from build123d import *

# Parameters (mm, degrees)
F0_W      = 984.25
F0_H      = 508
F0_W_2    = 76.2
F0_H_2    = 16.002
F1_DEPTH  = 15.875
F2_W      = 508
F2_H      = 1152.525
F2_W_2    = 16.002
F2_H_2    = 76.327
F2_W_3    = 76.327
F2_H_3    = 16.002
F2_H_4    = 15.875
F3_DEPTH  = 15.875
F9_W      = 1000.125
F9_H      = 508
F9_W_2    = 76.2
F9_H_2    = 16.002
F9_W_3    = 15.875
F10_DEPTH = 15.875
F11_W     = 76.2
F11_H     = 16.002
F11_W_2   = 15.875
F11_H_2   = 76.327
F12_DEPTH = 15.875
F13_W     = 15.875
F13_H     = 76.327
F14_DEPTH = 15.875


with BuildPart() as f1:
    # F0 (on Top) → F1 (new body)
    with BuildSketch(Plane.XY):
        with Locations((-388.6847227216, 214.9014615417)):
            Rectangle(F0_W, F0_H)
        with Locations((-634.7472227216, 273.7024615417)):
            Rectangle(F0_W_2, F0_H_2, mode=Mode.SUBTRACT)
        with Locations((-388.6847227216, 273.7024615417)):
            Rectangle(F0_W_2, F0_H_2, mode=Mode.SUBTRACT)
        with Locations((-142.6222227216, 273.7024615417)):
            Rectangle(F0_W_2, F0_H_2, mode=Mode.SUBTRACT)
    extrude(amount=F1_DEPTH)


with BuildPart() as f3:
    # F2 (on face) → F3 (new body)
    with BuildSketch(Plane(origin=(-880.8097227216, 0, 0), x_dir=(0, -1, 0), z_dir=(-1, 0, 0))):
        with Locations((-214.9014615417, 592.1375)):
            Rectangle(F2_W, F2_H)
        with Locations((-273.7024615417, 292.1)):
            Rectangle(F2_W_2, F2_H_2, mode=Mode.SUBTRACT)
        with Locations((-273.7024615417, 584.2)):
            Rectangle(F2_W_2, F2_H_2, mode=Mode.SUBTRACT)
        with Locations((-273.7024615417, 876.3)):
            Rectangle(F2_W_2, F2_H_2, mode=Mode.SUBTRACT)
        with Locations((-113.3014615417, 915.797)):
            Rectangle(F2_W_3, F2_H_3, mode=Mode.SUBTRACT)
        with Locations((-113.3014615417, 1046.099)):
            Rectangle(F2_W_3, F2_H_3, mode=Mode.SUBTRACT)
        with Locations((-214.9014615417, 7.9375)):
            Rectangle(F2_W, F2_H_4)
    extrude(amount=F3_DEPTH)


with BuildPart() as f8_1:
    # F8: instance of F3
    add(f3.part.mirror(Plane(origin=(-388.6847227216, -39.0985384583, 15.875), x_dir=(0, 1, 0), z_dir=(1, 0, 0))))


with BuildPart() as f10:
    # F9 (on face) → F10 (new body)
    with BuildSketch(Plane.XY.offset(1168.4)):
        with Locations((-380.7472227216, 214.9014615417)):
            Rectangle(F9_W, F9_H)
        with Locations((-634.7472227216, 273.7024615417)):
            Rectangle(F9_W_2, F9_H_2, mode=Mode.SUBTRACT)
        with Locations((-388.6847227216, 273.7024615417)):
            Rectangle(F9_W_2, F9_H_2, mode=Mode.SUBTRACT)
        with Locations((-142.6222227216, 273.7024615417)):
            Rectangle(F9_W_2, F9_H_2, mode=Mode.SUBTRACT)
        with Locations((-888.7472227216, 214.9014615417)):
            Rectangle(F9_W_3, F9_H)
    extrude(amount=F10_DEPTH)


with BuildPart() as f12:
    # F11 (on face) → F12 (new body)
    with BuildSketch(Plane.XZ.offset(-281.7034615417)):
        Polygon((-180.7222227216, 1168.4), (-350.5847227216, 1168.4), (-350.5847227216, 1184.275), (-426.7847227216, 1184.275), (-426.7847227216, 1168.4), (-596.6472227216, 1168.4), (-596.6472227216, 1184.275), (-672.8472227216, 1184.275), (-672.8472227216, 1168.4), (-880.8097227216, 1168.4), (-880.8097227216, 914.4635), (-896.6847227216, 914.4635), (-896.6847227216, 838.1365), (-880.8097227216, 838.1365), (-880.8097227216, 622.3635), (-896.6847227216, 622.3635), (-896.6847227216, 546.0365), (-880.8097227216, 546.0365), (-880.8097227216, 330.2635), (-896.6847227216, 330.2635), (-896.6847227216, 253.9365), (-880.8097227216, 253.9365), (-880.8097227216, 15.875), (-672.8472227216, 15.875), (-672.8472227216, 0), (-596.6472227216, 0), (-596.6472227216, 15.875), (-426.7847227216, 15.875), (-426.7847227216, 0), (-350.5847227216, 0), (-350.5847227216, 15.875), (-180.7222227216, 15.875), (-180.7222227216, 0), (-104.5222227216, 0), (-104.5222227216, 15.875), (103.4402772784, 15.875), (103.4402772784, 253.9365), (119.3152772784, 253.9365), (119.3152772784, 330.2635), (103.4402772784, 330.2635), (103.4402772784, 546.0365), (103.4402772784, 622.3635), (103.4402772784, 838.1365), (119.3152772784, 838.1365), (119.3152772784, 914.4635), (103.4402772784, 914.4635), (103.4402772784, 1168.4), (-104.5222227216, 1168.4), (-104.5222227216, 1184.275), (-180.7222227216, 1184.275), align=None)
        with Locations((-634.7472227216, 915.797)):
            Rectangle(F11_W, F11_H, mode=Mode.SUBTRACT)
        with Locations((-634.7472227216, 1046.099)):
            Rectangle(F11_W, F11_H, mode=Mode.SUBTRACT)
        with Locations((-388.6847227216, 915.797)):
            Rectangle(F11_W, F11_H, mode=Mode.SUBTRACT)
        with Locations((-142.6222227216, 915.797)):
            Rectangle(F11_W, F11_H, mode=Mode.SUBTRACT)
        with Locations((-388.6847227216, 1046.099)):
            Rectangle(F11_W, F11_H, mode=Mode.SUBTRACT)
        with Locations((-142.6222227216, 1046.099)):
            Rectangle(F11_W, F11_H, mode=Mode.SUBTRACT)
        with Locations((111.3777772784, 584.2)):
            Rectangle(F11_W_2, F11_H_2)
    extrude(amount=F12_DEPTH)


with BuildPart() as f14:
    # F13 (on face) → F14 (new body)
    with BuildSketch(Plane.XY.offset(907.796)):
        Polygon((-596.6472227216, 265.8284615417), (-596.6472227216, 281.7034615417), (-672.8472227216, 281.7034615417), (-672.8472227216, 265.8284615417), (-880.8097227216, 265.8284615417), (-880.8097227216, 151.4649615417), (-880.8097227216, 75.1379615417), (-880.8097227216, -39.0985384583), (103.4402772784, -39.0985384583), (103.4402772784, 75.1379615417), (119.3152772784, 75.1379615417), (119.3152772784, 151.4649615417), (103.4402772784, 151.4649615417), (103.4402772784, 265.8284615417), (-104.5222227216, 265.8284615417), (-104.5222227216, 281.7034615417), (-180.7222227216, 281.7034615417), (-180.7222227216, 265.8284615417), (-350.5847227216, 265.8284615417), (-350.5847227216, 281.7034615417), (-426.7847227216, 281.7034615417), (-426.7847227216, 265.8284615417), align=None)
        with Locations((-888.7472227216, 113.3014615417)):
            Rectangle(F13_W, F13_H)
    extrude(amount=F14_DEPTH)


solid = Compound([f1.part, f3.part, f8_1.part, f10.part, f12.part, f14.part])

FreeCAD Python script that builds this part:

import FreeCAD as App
import Part
import Sketcher

V = App.Vector
Q = App.Units.Quantity


def add_polygon(sketch, points):
    """Adds a closed chain of lines whose ends are joined by coincident constraints."""
    first, n = sketch.GeometryCount, len(points)
    for a, b in zip(points, points[1:] + points[:1]):
        sketch.addGeometry(Part.LineSegment(App.Vector(*a, 0), App.Vector(*b, 0)), False)
    for i in range(n):
        sketch.addConstraint(Sketcher.Constraint("Coincident", first + i, 2, first + (i + 1) % n, 1))

doc = App.newDocument("Part")
body = doc.addObject("PartDesign::Body", "Body")

# Sketch on XY plane
sketch1 = doc.addObject("Sketcher::SketchObject", "Sketch")
body.addObject(sketch1)
sketch1.AttachmentSupport = (doc.XY_Plane, [""])
sketch1.MapMode = "FlatFace"
add_polygon(sketch1, [(-880.809723, 468.901462), (-880.809723, -39.098538), (103.440277, -39.098538), (103.440277, 468.901462)])  # lines 0-3
add_polygon(sketch1, [(-596.647223, 265.701462), (-672.847223, 265.701462), (-672.847223, 281.703462), (-596.647223, 281.703462)])  # lines 4-7
add_polygon(sketch1, [(-350.584723, 265.701462), (-426.784723, 265.701462), (-426.784723, 281.703462), (-350.584723, 281.703462)])  # lines 8-11
add_polygon(sketch1, [(-104.522223, 265.701462), (-180.722223, 265.701462), (-180.722223, 281.703462), (-104.522223, 281.703462)])  # lines 12-15
sketch1.addConstraint(Sketcher.Constraint("Vertical", 0))
sketch1.addConstraint(Sketcher.Constraint("Horizontal", 1))
sketch1.addConstraint(Sketcher.Constraint("Vertical", 2))
sketch1.addConstraint(Sketcher.Constraint("Horizontal", 3))
sketch1.addConstraint(Sketcher.Constraint("Horizontal", 4))
sketch1.addConstraint(Sketcher.Constraint("Vertical", 5))
sketch1.addConstraint(Sketcher.Constraint("Horizontal", 6))
sketch1.addConstraint(Sketcher.Constraint("Vertical", 7))
sketch1.addConstraint(Sketcher.Constraint("Horizontal", 8))
sketch1.addConstraint(Sketcher.Constraint("Vertical", 9))
sketch1.addConstraint(Sketcher.Constraint("Horizontal", 10))
sketch1.addConstraint(Sketcher.Constraint("Vertical", 11))
sketch1.addConstraint(Sketcher.Constraint("Horizontal", 12))
sketch1.addConstraint(Sketcher.Constraint("Vertical", 13))
sketch1.addConstraint(Sketcher.Constraint("Horizontal", 14))
sketch1.addConstraint(Sketcher.Constraint("Vertical", 15))
sketch1.addConstraint(Sketcher.Constraint("Horizontal", 7, 2, 8, 2))
sketch1.addConstraint(Sketcher.Constraint("Horizontal", 6, 2, 9, 2))
sketch1.addConstraint(Sketcher.Constraint("Horizontal", 11, 2, 12, 2))
sketch1.addConstraint(Sketcher.Constraint("Horizontal", 10, 2, 13, 2))
sketch1.addConstraint(Sketcher.Constraint("Equal", 6, 8))
sketch1.addConstraint(Sketcher.Constraint("Equal", 10, 12))
sketch1.addConstraint(Sketcher.Constraint("DistanceX", 4, 2, 4, 1, Q("3 in")))
sketch1.addConstraint(Sketcher.Constraint("DistanceY", 0, 2, 0, 1, Q("20 in")))
sketch1.addConstraint(Sketcher.Constraint("DistanceY", 4, 2, 3, 2, Q("8 in")))
sketch1.addConstraint(Sketcher.Constraint("DistanceX", 1, 1, 1, 2, Q("38.75 in")))
sketch1.addConstraint(Sketcher.Constraint("DistanceY", 5, 1, 5, 2, Q("0.63 in")))
sketch1.addConstraint(Sketcher.Constraint("DistanceX", 3, 2, 4, 2, Q("8.1875 in")))
sketch1.addConstraint(Sketcher.Constraint("DistanceX", 7, 2, 8, 2, Q("6.6875 in")))
sketch1.addConstraint(Sketcher.Constraint("DistanceX", 11, 2, 12, 2, Q("6.6875 in")))
sketch1.addConstraint(Sketcher.Constraint("DistanceY", 0, 2, -1, 1, 39.098538))
sketch1.addConstraint(Sketcher.Constraint("DistanceX", 0, 2, -1, 1, 880.809723))
pad1 = doc.addObject("PartDesign::Pad", "Pad")
body.addObject(pad1)
pad1.Profile = sketch1
pad1.Length = Q("0.625 in")
body2 = doc.addObject("PartDesign::Body", "Body001")

# Sketch on YZ plane
sketch2 = doc.addObject("Sketcher::SketchObject", "Sketch001")
body2.addObject(sketch2)
sketch2.AttachmentSupport = (doc.getObject("YZ_Plane001"), [""])
sketch2.MapMode = "FlatFace"
sketch2.AttachmentOffset = App.Placement(V(0, 0, -880.809723), App.Rotation())
add_polygon(sketch2, [(468.901462, 1168.4), (468.901462, 0), (-39.098538, 0), (-39.098538, 1168.4)])  # lines 0-3
add_polygon(sketch2, [(265.701462, 253.9365), (281.703462, 253.9365), (281.703462, 330.2635), (265.701462, 330.2635)])  # lines 4-7
add_polygon(sketch2, [(265.701462, 546.0365), (281.703462, 546.0365), (281.703462, 622.3635), (265.701462, 622.3635)])  # lines 8-11
add_polygon(sketch2, [(265.701462, 838.1365), (281.703462, 838.1365), (281.703462, 914.4635), (265.701462, 914.4635)])  # lines 12-15
add_polygon(sketch2, [(75.137962, 907.796), (151.464962, 907.796), (151.464962, 923.798), (75.137962, 923.798)])  # lines 16-19
add_polygon(sketch2, [(75.137962, 1038.098), (151.464962, 1038.098), (151.464962, 1054.1), (75.137962, 1054.1)])  # lines 20-23
sketch2.addConstraint(Sketcher.Constraint("Vertical", 0))
sketch2.addConstraint(Sketcher.Constraint("Horizontal", 1))
sketch2.addConstraint(Sketcher.Constraint("Vertical", 2))
sketch2.addConstraint(Sketcher.Constraint("Horizontal", 3))
sketch2.addConstraint(Sketcher.Constraint("Horizontal", 4))
sketch2.addConstraint(Sketcher.Constraint("Vertical", 5))
sketch2.addConstraint(Sketcher.Constraint("Horizontal", 6))
sketch2.addConstraint(Sketcher.Constraint("Vertical", 7))
sketch2.addConstraint(Sketcher.Constraint("Horizontal", 8))
sketch2.addConstraint(Sketcher.Constraint("Vertical", 9))
sketch2.addConstraint(Sketcher.Constraint("Horizontal", 10))
sketch2.addConstraint(Sketcher.Constraint("Vertical", 11))
sketch2.addConstraint(Sketcher.Constraint("Horizontal", 12))
sketch2.addConstraint(Sketcher.Constraint("Vertical", 13))
sketch2.addConstraint(Sketcher.Constraint("Horizontal", 14))
sketch2.addConstraint(Sketcher.Constraint("Vertical", 15))
sketch2.addConstraint(Sketcher.Constraint("Horizontal", 16))
sketch2.addConstraint(Sketcher.Constraint("Vertical", 17))
sketch2.addConstraint(Sketcher.Constraint("Horizontal", 18))
sketch2.addConstraint(Sketcher.Constraint("Vertical", 19))
sketch2.addConstraint(Sketcher.Constraint("Horizontal", 20))
sketch2.addConstraint(Sketcher.Constraint("Vertical", 21))
sketch2.addConstraint(Sketcher.Constraint("Horizontal", 22))
sketch2.addConstraint(Sketcher.Constraint("Vertical", 23))
sketch2.addConstraint(Sketcher.Constraint("PointOnObject", 0, 2, -1))
sketch2.addConstraint(Sketcher.Constraint("Vertical", 5, 2, 8, 2))
sketch2.addConstraint(Sketcher.Constraint("Vertical", 7, 2, 10, 2))
sketch2.addConstraint(Sketcher.Constraint("Vertical", 9, 2, 12, 2))
sketch2.addConstraint(Sketcher.Constraint("Vertical", 11, 2, 14, 2))
sketch2.addConstraint(Sketcher.Constraint("Vertical", 17, 2, 20, 2))
sketch2.addConstraint(Sketcher.Constraint("Vertical", 19, 2, 22, 2))
sketch2.addConstraint(Sketcher.Constraint("Equal", 22, 5))
sketch2.addConstraint(Sketcher.Constraint("Equal", 7, 9))
sketch2.addConstraint(Sketcher.Constraint("Equal", 11, 13))
sketch2.addConstraint(Sketcher.Constraint("Equal", 14, 17))
sketch2.addConstraint(Sketcher.Constraint("Equal", 19, 21))
sketch2.addConstraint(Sketcher.Constraint("DistanceX", 1, 2, 1, 1, Q("20 in")))
sketch2.addConstraint(Sketcher.Constraint("DistanceY", 0, 2, 0, 1, Q("46 in")))
sketch2.addConstraint(Sketcher.Constraint("DistanceX", 6, 2, 0, 2, Q("8 in")))
sketch2.addConstraint(Sketcher.Constraint("DistanceX", 4, 1, 4, 2, Q("0.63 in")))
sketch2.addConstraint(Sketcher.Constraint("DistanceY", -1, 1, 21, 2, Q("41.5 in")))
sketch2.addConstraint(Sketcher.Constraint("DistanceY", 4, 2, 8, 2, Q("11.5 in")))
sketch2.addConstraint(Sketcher.Constraint("DistanceY", 8, 2, 12, 2, Q("11.5 in")))
sketch2.addConstraint(Sketcher.Constraint("DistanceY", 17, 2, 20, 2, Q("4.5 in")))
sketch2.addConstraint(Sketcher.Constraint("DistanceX", 16, 1, 16, 2, Q("3.005 in")))
sketch2.addConstraint(Sketcher.Constraint("DistanceY", -1, 1, 4, 2, Q("9.9975 in")))
sketch2.addConstraint(Sketcher.Constraint("DistanceX", 16, 2, 14, 2, Q("4.4975 in")))
sketch2.addConstraint(Sketcher.Constraint("DistanceX", -1, 1, 0, 2, 468.901462))
pad2 = doc.addObject("PartDesign::Pad", "Pad001")
body2.addObject(pad2)
pad2.Profile = sketch2
pad2.Length = Q("0.625 in")
pad2.Reversed = True
body3 = doc.addObject("PartDesign::Body", "Body002")
doc.recompute()

mirroring = doc.addObject("Part::Mirroring", "Mirroring")
mirroring.Source = body2
mirroring.Base = V(-388.684723, -39.098538, 15.875)
mirroring.Normal = V(1, 0, 0)
body3.BaseFeature = mirroring
doc.recompute()
body4 = doc.addObject("PartDesign::Body", "Body003")

# Sketch on XY plane
sketch3 = doc.addObject("Sketcher::SketchObject", "Sketch002")
body4.addObject(sketch3)
sketch3.AttachmentSupport = (doc.getObject("XY_Plane003"), [""])
sketch3.MapMode = "FlatFace"
sketch3.AttachmentOffset = App.Placement(V(0, 0, 46 * 25.4), App.Rotation())
add_polygon(sketch3, [(119.315277, -39.098538), (119.315277, 468.901462), (-896.684723, 468.901462), (-896.684723, -39.098538)])  # lines 0-3
add_polygon(sketch3, [(-596.647223, 265.701462), (-672.847223, 265.701462), (-672.847223, 281.703462), (-596.647223, 281.703462)])  # lines 4-7
add_polygon(sketch3, [(-350.584723, 265.701462), (-426.784723, 265.701462), (-426.784723, 281.703462), (-350.584723, 281.703462)])  # lines 8-11
add_polygon(sketch3, [(-104.522223, 265.701462), (-180.722223, 265.701462), (-180.722223, 281.703462), (-104.522223, 281.703462)])  # lines 12-15
sketch3.addConstraint(Sketcher.Constraint("Vertical", 0))
sketch3.addConstraint(Sketcher.Constraint("Horizontal", 1))
sketch3.addConstraint(Sketcher.Constraint("Vertical", 2))
sketch3.addConstraint(Sketcher.Constraint("Horizontal", 3))
sketch3.addConstraint(Sketcher.Constraint("Horizontal", 4))
sketch3.addConstraint(Sketcher.Constraint("Vertical", 5))
sketch3.addConstraint(Sketcher.Constraint("Horizontal", 6))
sketch3.addConstraint(Sketcher.Constraint("Vertical", 7))
sketch3.addConstraint(Sketcher.Constraint("Horizontal", 8))
sketch3.addConstraint(Sketcher.Constraint("Vertical", 9))
sketch3.addConstraint(Sketcher.Constraint("Horizontal", 10))
sketch3.addConstraint(Sketcher.Constraint("Vertical", 11))
sketch3.addConstraint(Sketcher.Constraint("Horizontal", 12))
sketch3.addConstraint(Sketcher.Constraint("Vertical", 13))
sketch3.addConstraint(Sketcher.Constraint("Horizontal", 14))
sketch3.addConstraint(Sketcher.Constraint("Vertical", 15))
sketch3.addConstraint(Sketcher.Constraint("Horizontal", 7, 2, 8, 2))
sketch3.addConstraint(Sketcher.Constraint("Horizontal", 6, 2, 9, 2))
sketch3.addConstraint(Sketcher.Constraint("Horizontal", 11, 2, 12, 2))
sketch3.addConstraint(Sketcher.Constraint("Horizontal", 10, 2, 13, 2))
sketch3.addConstraint(Sketcher.Constraint("Equal", 6, 8))
sketch3.addConstraint(Sketcher.Constraint("Equal", 10, 12))
sketch3.addConstraint(Sketcher.Constraint("DistanceX", 1, 2, 1, 1, Q("40 in")))
sketch3.addConstraint(Sketcher.Constraint("DistanceX", 4, 2, 4, 1, Q("3 in")))
sketch3.addConstraint(Sketcher.Constraint("DistanceY", 0, 1, 0, 2, Q("20 in")))
sketch3.addConstraint(Sketcher.Constraint("DistanceY", 4, 2, 1, 2, Q("8 in")))
sketch3.addConstraint(Sketcher.Constraint("DistanceY", 5, 1, 5, 2, Q("0.63 in")))
sketch3.addConstraint(Sketcher.Constraint("DistanceX", 1, 2, 8, 2, Q("18.5 in")))
sketch3.addConstraint(Sketcher.Constraint("DistanceX", 1, 2, 4, 2, Q("8.8125 in")))
sketch3.addConstraint(Sketcher.Constraint("DistanceX", 11, 2, 12, 2, Q("6.6875 in")))
sketch3.addConstraint(Sketcher.Constraint("DistanceY", -1, 1, 0, 2, 468.901462))
sketch3.addConstraint(Sketcher.Constraint("DistanceX", -1, 1, 0, 2, 119.315277))
pad3 = doc.addObject("PartDesign::Pad", "Pad002")
body4.addObject(pad3)
pad3.Profile = sketch3
pad3.Length = Q("0.625 in")
body5 = doc.addObject("PartDesign::Body", "Body004")

# Sketch on XZ plane
sketch4 = doc.addObject("Sketcher::SketchObject", "Sketch003")
body5.addObject(sketch4)
sketch4.AttachmentSupport = (doc.getObject("XZ_Plane004"), [""])
sketch4.MapMode = "FlatFace"
sketch4.AttachmentOffset = App.Placement(V(0, 0, -281.703462), App.Rotation())
add_polygon(sketch4, [(-180.722223, 1168.4), (-350.584723, 1168.4), (-350.584723, 1184.275), (-426.784723, 1184.275), (-426.784723, 1168.4), (-596.647223, 1168.4), (-596.647223, 1184.275), (-672.847223, 1184.275), (-672.847223, 1168.4), (-880.809723, 1168.4), (-880.809723, 914.4635), (-896.684723, 914.4635), (-896.684723, 838.1365), (-880.809723, 838.1365), (-880.809723, 622.3635), (-896.684723, 622.3635), (-896.684723, 546.0365), (-880.809723, 546.0365), (-880.809723, 330.2635), (-896.684723, 330.2635), (-896.684723, 253.9365), (-880.809723, 253.9365), (-880.809723, 15.875), (-672.847223, 15.875), (-672.847223, 0), (-596.647223, 0), (-596.647223, 15.875), (-426.784723, 15.875), (-426.784723, 0), (-350.584723, 0), (-350.584723, 15.875), (-180.722223, 15.875), (-180.722223, 0), (-104.522223, 0), (-104.522223, 15.875), (103.440277, 15.875), (103.440277, 253.9365), (119.315277, 253.9365), (119.315277, 330.2635), (103.440277, 330.2635), (103.440277, 546.0365), (119.315277, 546.0365), (119.315277, 622.3635), (103.440277, 622.3635), (103.440277, 838.1365), (119.315277, 838.1365), (119.315277, 914.4635), (103.440277, 914.4635), (103.440277, 1168.4), (-104.522223, 1168.4), (-104.522223, 1184.275), (-180.722223, 1184.275)])  # lines 0-51
add_polygon(sketch4, [(-596.647223, 907.796), (-672.847223, 907.796), (-672.847223, 923.798), (-596.647223, 923.798)])  # lines 52-55
add_polygon(sketch4, [(-350.584723, 907.796), (-426.784723, 907.796), (-426.784723, 923.798), (-350.584723, 923.798)])  # lines 56-59
add_polygon(sketch4, [(-104.522223, 907.796), (-180.722223, 907.796), (-180.722223, 923.798), (-104.522223, 923.798)])  # lines 60-63
add_polygon(sketch4, [(-596.647223, 1038.098), (-672.847223, 1038.098), (-672.847223, 1054.1), (-596.647223, 1054.1)])  # lines 64-67
add_polygon(sketch4, [(-350.584723, 1038.098), (-426.784723, 1038.098), (-426.784723, 1054.1), (-350.584723, 1054.1)])  # lines 68-71
add_polygon(sketch4, [(-104.522223, 1038.098), (-180.722223, 1038.098), (-180.722223, 1054.1), (-104.522223, 1054.1)])  # lines 72-75
sketch4.addConstraint(Sketcher.Constraint("Horizontal", 0))
sketch4.addConstraint(Sketcher.Constraint("Vertical", 1))
sketch4.addConstraint(Sketcher.Constraint("Horizontal", 2))
sketch4.addConstraint(Sketcher.Constraint("Vertical", 3))
sketch4.addConstraint(Sketcher.Constraint("Horizontal", 4))
sketch4.addConstraint(Sketcher.Constraint("Vertical", 5))
sketch4.addConstraint(Sketcher.Constraint("Horizontal", 6))
sketch4.addConstraint(Sketcher.Constraint("Vertical", 7))
sketch4.addConstraint(Sketcher.Constraint("Horizontal", 8))
sketch4.addConstraint(Sketcher.Constraint("Vertical", 9))
sketch4.addConstraint(Sketcher.Constraint("Horizontal", 10))
sketch4.addConstraint(Sketcher.Constraint("Vertical", 11))
sketch4.addConstraint(Sketcher.Constraint("Horizontal", 12))
sketch4.addConstraint(Sketcher.Constraint("Vertical", 13))
sketch4.addConstraint(Sketcher.Constraint("Horizontal", 14))
sketch4.addConstraint(Sketcher.Constraint("Vertical", 15))
sketch4.addConstraint(Sketcher.Constraint("Horizontal", 16))
sketch4.addConstraint(Sketcher.Constraint("Vertical", 17))
sketch4.addConstraint(Sketcher.Constraint("Horizontal", 18))
sketch4.addConstraint(Sketcher.Constraint("Vertical", 19))
sketch4.addConstraint(Sketcher.Constraint("Horizontal", 20))
sketch4.addConstraint(Sketcher.Constraint("Vertical", 21))
sketch4.addConstraint(Sketcher.Constraint("Horizontal", 22))
sketch4.addConstraint(Sketcher.Constraint("Vertical", 23))
sketch4.addConstraint(Sketcher.Constraint("Horizontal", 24))
sketch4.addConstraint(Sketcher.Constraint("Vertical", 25))
sketch4.addConstraint(Sketcher.Constraint("Horizontal", 26))
sketch4.addConstraint(Sketcher.Constraint("Vertical", 27))
sketch4.addConstraint(Sketcher.Constraint("Horizontal", 28))
sketch4.addConstraint(Sketcher.Constraint("Vertical", 29))
sketch4.addConstraint(Sketcher.Constraint("Horizontal", 30))
sketch4.addConstraint(Sketcher.Constraint("Vertical", 31))
sketch4.addConstraint(Sketcher.Constraint("Horizontal", 32))
sketch4.addConstraint(Sketcher.Constraint("Vertical", 33))
sketch4.addConstraint(Sketcher.Constraint("Horizontal", 34))
sketch4.addConstraint(Sketcher.Constraint("Vertical", 35))
sketch4.addConstraint(Sketcher.Constraint("Horizontal", 36))
sketch4.addConstraint(Sketcher.Constraint("Vertical", 37))
sketch4.addConstraint(Sketcher.Constraint("Horizontal", 38))
sketch4.addConstraint(Sketcher.Constraint("Vertical", 39))
sketch4.addConstraint(Sketcher.Constraint("Horizontal", 40))
sketch4.addConstraint(Sketcher.Constraint("Vertical", 41))
sketch4.addConstraint(Sketcher.Constraint("Horizontal", 42))
sketch4.addConstraint(Sketcher.Constraint("Vertical", 43))
sketch4.addConstraint(Sketcher.Constraint("Horizontal", 44))
sketch4.addConstraint(Sketcher.Constraint("Vertical", 45))
sketch4.addConstraint(Sketcher.Constraint("Horizontal", 46))
sketch4.addConstraint(Sketcher.Constraint("Vertical", 47))
sketch4.addConstraint(Sketcher.Constraint("Horizontal", 48))
sketch4.addConstraint(Sketcher.Constraint("Vertical", 49))
sketch4.addConstraint(Sketcher.Constraint("Horizontal", 50))
sketch4.addConstraint(Sketcher.Constraint("Vertical", 51))
sketch4.addConstraint(Sketcher.Constraint("Horizontal", 52))
sketch4.addConstraint(Sketcher.Constraint("Vertical", 53))
sketch4.addConstraint(Sketcher.Constraint("Horizontal", 54))
sketch4.addConstraint(Sketcher.Constraint("Vertical", 55))
sketch4.addConstraint(Sketcher.Constraint("Horizontal", 56))
sketch4.addConstraint(Sketcher.Constraint("Vertical", 57))
sketch4.addConstraint(Sketcher.Constraint("Horizontal", 58))
sketch4.addConstraint(Sketcher.Constraint("Vertical", 59))
sketch4.addConstraint(Sketcher.Constraint("Horizontal", 60))
sketch4.addConstraint(Sketcher.Constraint("Vertical", 61))
sketch4.addConstraint(Sketcher.Constraint("Horizontal", 62))
sketch4.addConstraint(Sketcher.Constraint("Vertical", 63))
sketch4.addConstraint(Sketcher.Constraint("Horizontal", 64))
sketch4.addConstraint(Sketcher.Constraint("Vertical", 65))
sketch4.addConstraint(Sketcher.Constraint("Horizontal", 66))
sketch4.addConstraint(Sketcher.Constraint("Vertical", 67))
sketch4.addConstraint(Sketcher.Constraint("Horizontal", 68))
sketch4.addConstraint(Sketcher.Constraint("Vertical", 69))
sketch4.addConstraint(Sketcher.Constraint("Horizontal", 70))
sketch4.addConstraint(Sketcher.Constraint("Vertical", 71))
sketch4.addConstraint(Sketcher.Constraint("Horizontal", 72))
sketch4.addConstraint(Sketcher.Constraint("Vertical", 73))
sketch4.addConstraint(Sketcher.Constraint("Horizontal", 74))
sketch4.addConstraint(Sketcher.Constraint("Vertical", 75))
sketch4.addConstraint(Sketcher.Constraint("PointOnObject", 23, 2, -1))
sketch4.addConstraint(Sketcher.Constraint("PointOnObject", 27, 2, -1))
sketch4.addConstraint(Sketcher.Constraint("PointOnObject", 31, 2, -1))
sketch4.addConstraint(Sketcher.Constraint("Horizontal", 0, 2, 3, 2))
sketch4.addConstraint(Sketcher.Constraint("Horizontal", 2, 2, 5, 2))
sketch4.addConstraint(Sketcher.Constraint("Horizontal", 4, 2, 7, 2))
sketch4.addConstraint(Sketcher.Constraint("Horizontal", 22, 2, 25, 2))
sketch4.addConstraint(Sketcher.Constraint("Horizontal", 26, 2, 29, 2))
sketch4.addConstraint(Sketcher.Constraint("Horizontal", 30, 2, 33, 2))
sketch4.addConstraint(Sketcher.Constraint("Horizontal", 20, 2, 35, 2))
sketch4.addConstraint(Sketcher.Constraint("Horizontal", 18, 2, 37, 2))
sketch4.addConstraint(Sketcher.Constraint("Horizontal", 16, 2, 39, 2))
sketch4.addConstraint(Sketcher.Constraint("Horizontal", 14, 2, 41, 2))
sketch4.addConstraint(Sketcher.Constraint("Horizontal", 12, 2, 43, 2))
sketch4.addConstraint(Sketcher.Constraint("Horizontal", 10, 2, 45, 2))
sketch4.addConstraint(Sketcher.Constraint("Horizontal", 8, 2, 47, 2))
sketch4.addConstraint(Sketcher.Constraint("Horizontal", 6, 2, 49, 2))
sketch4.addConstraint(Sketcher.Constraint("Horizontal", 55, 2, 56, 2))
sketch4.addConstraint(Sketcher.Constraint("Horizontal", 54, 2, 57, 2))
sketch4.addConstraint(Sketcher.Constraint("Horizontal", 59, 2, 60, 2))
sketch4.addConstraint(Sketcher.Constraint("Horizontal", 58, 2, 61, 2))
sketch4.addConstraint(Sketcher.Constraint("Horizontal", 67, 2, 68, 2))
sketch4.addConstraint(Sketcher.Constraint("Horizontal", 66, 2, 69, 2))
sketch4.addConstraint(Sketcher.Constraint("Horizontal", 71, 2, 72, 2))
sketch4.addConstraint(Sketcher.Constraint("Horizontal", 70, 2, 73, 2))
sketch4.addConstraint(Sketcher.Constraint("Vertical", 9, 2, 12, 2))
sketch4.addConstraint(Sketcher.Constraint("Vertical", 11, 2, 14, 2))
sketch4.addConstraint(Sketcher.Constraint("Vertical", 13, 2, 16, 2))
sketch4.addConstraint(Sketcher.Constraint("Vertical", 15, 2, 18, 2))
sketch4.addConstraint(Sketcher.Constraint("Vertical", 17, 2, 20, 2))
sketch4.addConstraint(Sketcher.Constraint("Vertical", 7, 2, 22, 2))
sketch4.addConstraint(Sketcher.Constraint("Vertical", 5, 2, 24, 2))
sketch4.addConstraint(Sketcher.Constraint("Vertical", 3, 2, 26, 2))
sketch4.addConstraint(Sketcher.Constraint("Vertical", 1, 2, 28, 2))
sketch4.addConstraint(Sketcher.Constraint("Vertical", 35, 2, 38, 2))
sketch4.addConstraint(Sketcher.Constraint("Vertical", 37, 2, 40, 2))
sketch4.addConstraint(Sketcher.Constraint("Vertical", 39, 2, 42, 2))
sketch4.addConstraint(Sketcher.Constraint("Vertical", 41, 2, 44, 2))
sketch4.addConstraint(Sketcher.Constraint("Vertical", 43, 2, 46, 2))
sketch4.addConstraint(Sketcher.Constraint("Vertical", 33, 2, 48, 2))
sketch4.addConstraint(Sketcher.Constraint("Vertical", 31, 2, 50, 2))
sketch4.addConstraint(Sketcher.Constraint("Vertical", 23, 2, 52, 2))
sketch4.addConstraint(Sketcher.Constraint("Vertical", 25, 2, 54, 2))
sketch4.addConstraint(Sketcher.Constraint("Vertical", 27, 2, 56, 2))
sketch4.addConstraint(Sketcher.Constraint("Vertical", 29, 2, 58, 2))
sketch4.addConstraint(Sketcher.Constraint("Vertical", 51, 2, 60, 2))
sketch4.addConstraint(Sketcher.Constraint("Vertical", 49, 2, 62, 2))
sketch4.addConstraint(Sketcher.Constraint("Vertical", 53, 2, 64, 2))
sketch4.addConstraint(Sketcher.Constraint("Vertical", 55, 2, 66, 2))
sketch4.addConstraint(Sketcher.Constraint("Vertical", 57, 2, 68, 2))
sketch4.addConstraint(Sketcher.Constraint("Vertical", 59, 2, 70, 2))
sketch4.addConstraint(Sketcher.Constraint("Vertical", 61, 2, 72, 2))
sketch4.addConstraint(Sketcher.Constraint("Vertical", 63, 2, 74, 2))
sketch4.addConstraint(Sketcher.Constraint("Equal", 0, 4))
sketch4.addConstraint(Sketcher.Constraint("Equal", 2, 6))
sketch4.addConstraint(Sketcher.Constraint("Equal", 28, 32))
sketch4.addConstraint(Sketcher.Constraint("Equal", 22, 34))
sketch4.addConstraint(Sketcher.Constraint("Equal", 20, 36))
sketch4.addConstraint(Sketcher.Constraint("Equal", 46, 1))
sketch4.addConstraint(Sketcher.Constraint("Equal", 11, 15))
sketch4.addConstraint(Sketcher.Constraint("Equal", 13, 17))
sketch4.addConstraint(Sketcher.Constraint("Equal", 15, 19))
sketch4.addConstraint(Sketcher.Constraint("Equal", 7, 23))
sketch4.addConstraint(Sketcher.Constraint("Equal", 63, 65))
sketch4.addConstraint(Sketcher.Constraint("DistanceX", 2, 2, 2, 1, Q("3 in")))
sketch4.addConstraint(Sketcher.Constraint("DistanceY", -1, 1, 0, 2, Q("46 in")))
sketch4.addConstraint(Sketcher.Constraint("DistanceY", 53, 1, 53, 2, Q("0.63 in")))
sketch4.addConstraint(Sketcher.Constraint("DistanceY", -1, 1, 65, 2, Q("41.5 in")))
sketch4.addConstraint(Sketcher.Constraint("DistanceX", 0, 2, 0, 1, Q("6.6875 in")))
sketch4.addConstraint(Sketcher.Constraint("DistanceX", 8, 2, 8, 1, Q("8.1875 in")))
sketch4.addConstraint(Sketcher.Constraint("DistanceX", 10, 2, 10, 1, Q("0.625 in")))
sketch4.addConstraint(Sketcher.Constraint("DistanceY", 11, 2, 11, 1, Q("3.005 in")))
sketch4.addConstraint(Sketcher.Constraint("DistanceY", 13, 2, 13, 1, Q("8.495 in")))
sketch4.addConstraint(Sketcher.Constraint("DistanceY", -1, 1, 52, 2, Q("35.74 in")))
sketch4.addConstraint(Sketcher.Constraint("DistanceY", 9, 2, 9, 1, Q("9.9975 in")))
sketch4.addConstraint(Sketcher.Constraint("DistanceX", 0, 2, -1, 1, 350.584723))
pad4 = doc.addObject("PartDesign::Pad", "Pad003")
body5.addObject(pad4)
pad4.Profile = sketch4
pad4.Length = Q("0.625 in")
body6 = doc.addObject("PartDesign::Body", "Body005")

# Sketch on XY plane
sketch5 = doc.addObject("Sketcher::SketchObject", "Sketch004")
body6.addObject(sketch5)
sketch5.AttachmentSupport = (doc.getObject("XY_Plane005"), [""])
sketch5.MapMode = "FlatFace"
sketch5.AttachmentOffset = App.Placement(V(0, 0, 35.74 * 25.4), App.Rotation())
add_polygon(sketch5, [(-596.647223, 265.828462), (-596.647223, 281.703462), (-672.847223, 281.703462), (-672.847223, 265.828462), (-880.809723, 265.828462), (-880.809723, 151.464962), (-896.684723, 151.464962), (-896.684723, 75.137962), (-880.809723, 75.137962), (-880.809723, -39.098538), (103.440277, -39.098538), (103.440277, 75.137962), (119.315277, 75.137962), (119.315277, 151.464962), (103.440277, 151.464962), (103.440277, 265.828462), (-104.522223, 265.828462), (-104.522223, 281.703462), (-180.722223, 281.703462), (-180.722223, 265.828462), (-350.584723, 265.828462), (-350.584723, 281.703462), (-426.784723, 281.703462), (-426.784723, 265.828462)])  # lines 0-23
sketch5.addConstraint(Sketcher.Constraint("Vertical", 0))
sketch5.addConstraint(Sketcher.Constraint("Horizontal", 1))
sketch5.addConstraint(Sketcher.Constraint("Vertical", 2))
sketch5.addConstraint(Sketcher.Constraint("Horizontal", 3))
sketch5.addConstraint(Sketcher.Constraint("Vertical", 4))
sketch5.addConstraint(Sketcher.Constraint("Horizontal", 5))
sketch5.addConstraint(Sketcher.Constraint("Vertical", 6))
sketch5.addConstraint(Sketcher.Constraint("Horizontal", 7))
sketch5.addConstraint(Sketcher.Constraint("Vertical", 8))
sketch5.addConstraint(Sketcher.Constraint("Horizontal", 9))
sketch5.addConstraint(Sketcher.Constraint("Vertical", 10))
sketch5.addConstraint(Sketcher.Constraint("Horizontal", 11))
sketch5.addConstraint(Sketcher.Constraint("Vertical", 12))
sketch5.addConstraint(Sketcher.Constraint("Horizontal", 13))
sketch5.addConstraint(Sketcher.Constraint("Vertical", 14))
sketch5.addConstraint(Sketcher.Constraint("Horizontal", 15))
sketch5.addConstraint(Sketcher.Constraint("Vertical", 16))
sketch5.addConstraint(Sketcher.Constraint("Horizontal", 17))
sketch5.addConstraint(Sketcher.Constraint("Vertical", 18))
sketch5.addConstraint(Sketcher.Constraint("Horizontal", 19))
sketch5.addConstraint(Sketcher.Constraint("Vertical", 20))
sketch5.addConstraint(Sketcher.Constraint("Horizontal", 21))
sketch5.addConstraint(Sketcher.Constraint("Vertical", 22))
sketch5.addConstraint(Sketcher.Constraint("Horizontal", 23))
sketch5.addConstraint(Sketcher.Constraint("Horizontal", 7, 2, 10, 2))
sketch5.addConstraint(Sketcher.Constraint("Horizontal", 5, 2, 12, 2))
sketch5.addConstraint(Sketcher.Constraint("Horizontal", 3, 2, 14, 2))
sketch5.addConstraint(Sketcher.Constraint("Horizontal", 1, 2, 16, 2))
sketch5.addConstraint(Sketcher.Constraint("Horizontal", 15, 2, 18, 2))
sketch5.addConstraint(Sketcher.Constraint("Horizontal", 17, 2, 20, 2))
sketch5.addConstraint(Sketcher.Constraint("Horizontal", 19, 2, 22, 2))
sketch5.addConstraint(Sketcher.Constraint("Vertical", 4, 2, 7, 2))
sketch5.addConstraint(Sketcher.Constraint("Vertical", 10, 2, 13, 2))
sketch5.addConstraint(Sketcher.Constraint("Equal", 7, 11))
sketch5.addConstraint(Sketcher.Constraint("Equal", 3, 15))
sketch5.addConstraint(Sketcher.Constraint("Equal", 1, 17))
sketch5.addConstraint(Sketcher.Constraint("Equal", 17, 21))
sketch5.addConstraint(Sketcher.Constraint("Equal", 19, 23))
sketch5.addConstraint(Sketcher.Constraint("Equal", 13, 0))
sketch5.addConstraint(Sketcher.Constraint("DistanceX", 1, 2, 1, 1, Q("3 in")))
sketch5.addConstraint(Sketcher.Constraint("DistanceX", 9, 1, 9, 2, Q("38.75 in")))
sketch5.addConstraint(Sketcher.Constraint("DistanceX", 3, 2, 3, 1, Q("8.1875 in")))
sketch5.addConstraint(Sketcher.Constraint("DistanceX", 5, 2, 5, 1, Q("0.625 in")))
sketch5.addConstraint(Sketcher.Constraint("DistanceY", 6, 2, 6, 1, Q("3.005 in")))
sketch5.addConstraint(Sketcher.Constraint("DistanceY", 9, 2, 0, 2, Q("12.63 in")))
sketch5.addConstraint(Sketcher.Constraint("DistanceY", 4, 2, 4, 1, Q("4.5025 in")))
sketch5.addConstraint(Sketcher.Constraint("DistanceY", -1, 1, 0, 2, 281.703462))
sketch5.addConstraint(Sketcher.Constraint("DistanceX", 0, 2, -1, 1, 596.647223))
pad5 = doc.addObject("PartDesign::Pad", "Pad004")
body6.addObject(pad5)
pad5.Profile = sketch5
pad5.Length = Q("0.625 in")
mirroring.Visibility = False

doc.recompute()
